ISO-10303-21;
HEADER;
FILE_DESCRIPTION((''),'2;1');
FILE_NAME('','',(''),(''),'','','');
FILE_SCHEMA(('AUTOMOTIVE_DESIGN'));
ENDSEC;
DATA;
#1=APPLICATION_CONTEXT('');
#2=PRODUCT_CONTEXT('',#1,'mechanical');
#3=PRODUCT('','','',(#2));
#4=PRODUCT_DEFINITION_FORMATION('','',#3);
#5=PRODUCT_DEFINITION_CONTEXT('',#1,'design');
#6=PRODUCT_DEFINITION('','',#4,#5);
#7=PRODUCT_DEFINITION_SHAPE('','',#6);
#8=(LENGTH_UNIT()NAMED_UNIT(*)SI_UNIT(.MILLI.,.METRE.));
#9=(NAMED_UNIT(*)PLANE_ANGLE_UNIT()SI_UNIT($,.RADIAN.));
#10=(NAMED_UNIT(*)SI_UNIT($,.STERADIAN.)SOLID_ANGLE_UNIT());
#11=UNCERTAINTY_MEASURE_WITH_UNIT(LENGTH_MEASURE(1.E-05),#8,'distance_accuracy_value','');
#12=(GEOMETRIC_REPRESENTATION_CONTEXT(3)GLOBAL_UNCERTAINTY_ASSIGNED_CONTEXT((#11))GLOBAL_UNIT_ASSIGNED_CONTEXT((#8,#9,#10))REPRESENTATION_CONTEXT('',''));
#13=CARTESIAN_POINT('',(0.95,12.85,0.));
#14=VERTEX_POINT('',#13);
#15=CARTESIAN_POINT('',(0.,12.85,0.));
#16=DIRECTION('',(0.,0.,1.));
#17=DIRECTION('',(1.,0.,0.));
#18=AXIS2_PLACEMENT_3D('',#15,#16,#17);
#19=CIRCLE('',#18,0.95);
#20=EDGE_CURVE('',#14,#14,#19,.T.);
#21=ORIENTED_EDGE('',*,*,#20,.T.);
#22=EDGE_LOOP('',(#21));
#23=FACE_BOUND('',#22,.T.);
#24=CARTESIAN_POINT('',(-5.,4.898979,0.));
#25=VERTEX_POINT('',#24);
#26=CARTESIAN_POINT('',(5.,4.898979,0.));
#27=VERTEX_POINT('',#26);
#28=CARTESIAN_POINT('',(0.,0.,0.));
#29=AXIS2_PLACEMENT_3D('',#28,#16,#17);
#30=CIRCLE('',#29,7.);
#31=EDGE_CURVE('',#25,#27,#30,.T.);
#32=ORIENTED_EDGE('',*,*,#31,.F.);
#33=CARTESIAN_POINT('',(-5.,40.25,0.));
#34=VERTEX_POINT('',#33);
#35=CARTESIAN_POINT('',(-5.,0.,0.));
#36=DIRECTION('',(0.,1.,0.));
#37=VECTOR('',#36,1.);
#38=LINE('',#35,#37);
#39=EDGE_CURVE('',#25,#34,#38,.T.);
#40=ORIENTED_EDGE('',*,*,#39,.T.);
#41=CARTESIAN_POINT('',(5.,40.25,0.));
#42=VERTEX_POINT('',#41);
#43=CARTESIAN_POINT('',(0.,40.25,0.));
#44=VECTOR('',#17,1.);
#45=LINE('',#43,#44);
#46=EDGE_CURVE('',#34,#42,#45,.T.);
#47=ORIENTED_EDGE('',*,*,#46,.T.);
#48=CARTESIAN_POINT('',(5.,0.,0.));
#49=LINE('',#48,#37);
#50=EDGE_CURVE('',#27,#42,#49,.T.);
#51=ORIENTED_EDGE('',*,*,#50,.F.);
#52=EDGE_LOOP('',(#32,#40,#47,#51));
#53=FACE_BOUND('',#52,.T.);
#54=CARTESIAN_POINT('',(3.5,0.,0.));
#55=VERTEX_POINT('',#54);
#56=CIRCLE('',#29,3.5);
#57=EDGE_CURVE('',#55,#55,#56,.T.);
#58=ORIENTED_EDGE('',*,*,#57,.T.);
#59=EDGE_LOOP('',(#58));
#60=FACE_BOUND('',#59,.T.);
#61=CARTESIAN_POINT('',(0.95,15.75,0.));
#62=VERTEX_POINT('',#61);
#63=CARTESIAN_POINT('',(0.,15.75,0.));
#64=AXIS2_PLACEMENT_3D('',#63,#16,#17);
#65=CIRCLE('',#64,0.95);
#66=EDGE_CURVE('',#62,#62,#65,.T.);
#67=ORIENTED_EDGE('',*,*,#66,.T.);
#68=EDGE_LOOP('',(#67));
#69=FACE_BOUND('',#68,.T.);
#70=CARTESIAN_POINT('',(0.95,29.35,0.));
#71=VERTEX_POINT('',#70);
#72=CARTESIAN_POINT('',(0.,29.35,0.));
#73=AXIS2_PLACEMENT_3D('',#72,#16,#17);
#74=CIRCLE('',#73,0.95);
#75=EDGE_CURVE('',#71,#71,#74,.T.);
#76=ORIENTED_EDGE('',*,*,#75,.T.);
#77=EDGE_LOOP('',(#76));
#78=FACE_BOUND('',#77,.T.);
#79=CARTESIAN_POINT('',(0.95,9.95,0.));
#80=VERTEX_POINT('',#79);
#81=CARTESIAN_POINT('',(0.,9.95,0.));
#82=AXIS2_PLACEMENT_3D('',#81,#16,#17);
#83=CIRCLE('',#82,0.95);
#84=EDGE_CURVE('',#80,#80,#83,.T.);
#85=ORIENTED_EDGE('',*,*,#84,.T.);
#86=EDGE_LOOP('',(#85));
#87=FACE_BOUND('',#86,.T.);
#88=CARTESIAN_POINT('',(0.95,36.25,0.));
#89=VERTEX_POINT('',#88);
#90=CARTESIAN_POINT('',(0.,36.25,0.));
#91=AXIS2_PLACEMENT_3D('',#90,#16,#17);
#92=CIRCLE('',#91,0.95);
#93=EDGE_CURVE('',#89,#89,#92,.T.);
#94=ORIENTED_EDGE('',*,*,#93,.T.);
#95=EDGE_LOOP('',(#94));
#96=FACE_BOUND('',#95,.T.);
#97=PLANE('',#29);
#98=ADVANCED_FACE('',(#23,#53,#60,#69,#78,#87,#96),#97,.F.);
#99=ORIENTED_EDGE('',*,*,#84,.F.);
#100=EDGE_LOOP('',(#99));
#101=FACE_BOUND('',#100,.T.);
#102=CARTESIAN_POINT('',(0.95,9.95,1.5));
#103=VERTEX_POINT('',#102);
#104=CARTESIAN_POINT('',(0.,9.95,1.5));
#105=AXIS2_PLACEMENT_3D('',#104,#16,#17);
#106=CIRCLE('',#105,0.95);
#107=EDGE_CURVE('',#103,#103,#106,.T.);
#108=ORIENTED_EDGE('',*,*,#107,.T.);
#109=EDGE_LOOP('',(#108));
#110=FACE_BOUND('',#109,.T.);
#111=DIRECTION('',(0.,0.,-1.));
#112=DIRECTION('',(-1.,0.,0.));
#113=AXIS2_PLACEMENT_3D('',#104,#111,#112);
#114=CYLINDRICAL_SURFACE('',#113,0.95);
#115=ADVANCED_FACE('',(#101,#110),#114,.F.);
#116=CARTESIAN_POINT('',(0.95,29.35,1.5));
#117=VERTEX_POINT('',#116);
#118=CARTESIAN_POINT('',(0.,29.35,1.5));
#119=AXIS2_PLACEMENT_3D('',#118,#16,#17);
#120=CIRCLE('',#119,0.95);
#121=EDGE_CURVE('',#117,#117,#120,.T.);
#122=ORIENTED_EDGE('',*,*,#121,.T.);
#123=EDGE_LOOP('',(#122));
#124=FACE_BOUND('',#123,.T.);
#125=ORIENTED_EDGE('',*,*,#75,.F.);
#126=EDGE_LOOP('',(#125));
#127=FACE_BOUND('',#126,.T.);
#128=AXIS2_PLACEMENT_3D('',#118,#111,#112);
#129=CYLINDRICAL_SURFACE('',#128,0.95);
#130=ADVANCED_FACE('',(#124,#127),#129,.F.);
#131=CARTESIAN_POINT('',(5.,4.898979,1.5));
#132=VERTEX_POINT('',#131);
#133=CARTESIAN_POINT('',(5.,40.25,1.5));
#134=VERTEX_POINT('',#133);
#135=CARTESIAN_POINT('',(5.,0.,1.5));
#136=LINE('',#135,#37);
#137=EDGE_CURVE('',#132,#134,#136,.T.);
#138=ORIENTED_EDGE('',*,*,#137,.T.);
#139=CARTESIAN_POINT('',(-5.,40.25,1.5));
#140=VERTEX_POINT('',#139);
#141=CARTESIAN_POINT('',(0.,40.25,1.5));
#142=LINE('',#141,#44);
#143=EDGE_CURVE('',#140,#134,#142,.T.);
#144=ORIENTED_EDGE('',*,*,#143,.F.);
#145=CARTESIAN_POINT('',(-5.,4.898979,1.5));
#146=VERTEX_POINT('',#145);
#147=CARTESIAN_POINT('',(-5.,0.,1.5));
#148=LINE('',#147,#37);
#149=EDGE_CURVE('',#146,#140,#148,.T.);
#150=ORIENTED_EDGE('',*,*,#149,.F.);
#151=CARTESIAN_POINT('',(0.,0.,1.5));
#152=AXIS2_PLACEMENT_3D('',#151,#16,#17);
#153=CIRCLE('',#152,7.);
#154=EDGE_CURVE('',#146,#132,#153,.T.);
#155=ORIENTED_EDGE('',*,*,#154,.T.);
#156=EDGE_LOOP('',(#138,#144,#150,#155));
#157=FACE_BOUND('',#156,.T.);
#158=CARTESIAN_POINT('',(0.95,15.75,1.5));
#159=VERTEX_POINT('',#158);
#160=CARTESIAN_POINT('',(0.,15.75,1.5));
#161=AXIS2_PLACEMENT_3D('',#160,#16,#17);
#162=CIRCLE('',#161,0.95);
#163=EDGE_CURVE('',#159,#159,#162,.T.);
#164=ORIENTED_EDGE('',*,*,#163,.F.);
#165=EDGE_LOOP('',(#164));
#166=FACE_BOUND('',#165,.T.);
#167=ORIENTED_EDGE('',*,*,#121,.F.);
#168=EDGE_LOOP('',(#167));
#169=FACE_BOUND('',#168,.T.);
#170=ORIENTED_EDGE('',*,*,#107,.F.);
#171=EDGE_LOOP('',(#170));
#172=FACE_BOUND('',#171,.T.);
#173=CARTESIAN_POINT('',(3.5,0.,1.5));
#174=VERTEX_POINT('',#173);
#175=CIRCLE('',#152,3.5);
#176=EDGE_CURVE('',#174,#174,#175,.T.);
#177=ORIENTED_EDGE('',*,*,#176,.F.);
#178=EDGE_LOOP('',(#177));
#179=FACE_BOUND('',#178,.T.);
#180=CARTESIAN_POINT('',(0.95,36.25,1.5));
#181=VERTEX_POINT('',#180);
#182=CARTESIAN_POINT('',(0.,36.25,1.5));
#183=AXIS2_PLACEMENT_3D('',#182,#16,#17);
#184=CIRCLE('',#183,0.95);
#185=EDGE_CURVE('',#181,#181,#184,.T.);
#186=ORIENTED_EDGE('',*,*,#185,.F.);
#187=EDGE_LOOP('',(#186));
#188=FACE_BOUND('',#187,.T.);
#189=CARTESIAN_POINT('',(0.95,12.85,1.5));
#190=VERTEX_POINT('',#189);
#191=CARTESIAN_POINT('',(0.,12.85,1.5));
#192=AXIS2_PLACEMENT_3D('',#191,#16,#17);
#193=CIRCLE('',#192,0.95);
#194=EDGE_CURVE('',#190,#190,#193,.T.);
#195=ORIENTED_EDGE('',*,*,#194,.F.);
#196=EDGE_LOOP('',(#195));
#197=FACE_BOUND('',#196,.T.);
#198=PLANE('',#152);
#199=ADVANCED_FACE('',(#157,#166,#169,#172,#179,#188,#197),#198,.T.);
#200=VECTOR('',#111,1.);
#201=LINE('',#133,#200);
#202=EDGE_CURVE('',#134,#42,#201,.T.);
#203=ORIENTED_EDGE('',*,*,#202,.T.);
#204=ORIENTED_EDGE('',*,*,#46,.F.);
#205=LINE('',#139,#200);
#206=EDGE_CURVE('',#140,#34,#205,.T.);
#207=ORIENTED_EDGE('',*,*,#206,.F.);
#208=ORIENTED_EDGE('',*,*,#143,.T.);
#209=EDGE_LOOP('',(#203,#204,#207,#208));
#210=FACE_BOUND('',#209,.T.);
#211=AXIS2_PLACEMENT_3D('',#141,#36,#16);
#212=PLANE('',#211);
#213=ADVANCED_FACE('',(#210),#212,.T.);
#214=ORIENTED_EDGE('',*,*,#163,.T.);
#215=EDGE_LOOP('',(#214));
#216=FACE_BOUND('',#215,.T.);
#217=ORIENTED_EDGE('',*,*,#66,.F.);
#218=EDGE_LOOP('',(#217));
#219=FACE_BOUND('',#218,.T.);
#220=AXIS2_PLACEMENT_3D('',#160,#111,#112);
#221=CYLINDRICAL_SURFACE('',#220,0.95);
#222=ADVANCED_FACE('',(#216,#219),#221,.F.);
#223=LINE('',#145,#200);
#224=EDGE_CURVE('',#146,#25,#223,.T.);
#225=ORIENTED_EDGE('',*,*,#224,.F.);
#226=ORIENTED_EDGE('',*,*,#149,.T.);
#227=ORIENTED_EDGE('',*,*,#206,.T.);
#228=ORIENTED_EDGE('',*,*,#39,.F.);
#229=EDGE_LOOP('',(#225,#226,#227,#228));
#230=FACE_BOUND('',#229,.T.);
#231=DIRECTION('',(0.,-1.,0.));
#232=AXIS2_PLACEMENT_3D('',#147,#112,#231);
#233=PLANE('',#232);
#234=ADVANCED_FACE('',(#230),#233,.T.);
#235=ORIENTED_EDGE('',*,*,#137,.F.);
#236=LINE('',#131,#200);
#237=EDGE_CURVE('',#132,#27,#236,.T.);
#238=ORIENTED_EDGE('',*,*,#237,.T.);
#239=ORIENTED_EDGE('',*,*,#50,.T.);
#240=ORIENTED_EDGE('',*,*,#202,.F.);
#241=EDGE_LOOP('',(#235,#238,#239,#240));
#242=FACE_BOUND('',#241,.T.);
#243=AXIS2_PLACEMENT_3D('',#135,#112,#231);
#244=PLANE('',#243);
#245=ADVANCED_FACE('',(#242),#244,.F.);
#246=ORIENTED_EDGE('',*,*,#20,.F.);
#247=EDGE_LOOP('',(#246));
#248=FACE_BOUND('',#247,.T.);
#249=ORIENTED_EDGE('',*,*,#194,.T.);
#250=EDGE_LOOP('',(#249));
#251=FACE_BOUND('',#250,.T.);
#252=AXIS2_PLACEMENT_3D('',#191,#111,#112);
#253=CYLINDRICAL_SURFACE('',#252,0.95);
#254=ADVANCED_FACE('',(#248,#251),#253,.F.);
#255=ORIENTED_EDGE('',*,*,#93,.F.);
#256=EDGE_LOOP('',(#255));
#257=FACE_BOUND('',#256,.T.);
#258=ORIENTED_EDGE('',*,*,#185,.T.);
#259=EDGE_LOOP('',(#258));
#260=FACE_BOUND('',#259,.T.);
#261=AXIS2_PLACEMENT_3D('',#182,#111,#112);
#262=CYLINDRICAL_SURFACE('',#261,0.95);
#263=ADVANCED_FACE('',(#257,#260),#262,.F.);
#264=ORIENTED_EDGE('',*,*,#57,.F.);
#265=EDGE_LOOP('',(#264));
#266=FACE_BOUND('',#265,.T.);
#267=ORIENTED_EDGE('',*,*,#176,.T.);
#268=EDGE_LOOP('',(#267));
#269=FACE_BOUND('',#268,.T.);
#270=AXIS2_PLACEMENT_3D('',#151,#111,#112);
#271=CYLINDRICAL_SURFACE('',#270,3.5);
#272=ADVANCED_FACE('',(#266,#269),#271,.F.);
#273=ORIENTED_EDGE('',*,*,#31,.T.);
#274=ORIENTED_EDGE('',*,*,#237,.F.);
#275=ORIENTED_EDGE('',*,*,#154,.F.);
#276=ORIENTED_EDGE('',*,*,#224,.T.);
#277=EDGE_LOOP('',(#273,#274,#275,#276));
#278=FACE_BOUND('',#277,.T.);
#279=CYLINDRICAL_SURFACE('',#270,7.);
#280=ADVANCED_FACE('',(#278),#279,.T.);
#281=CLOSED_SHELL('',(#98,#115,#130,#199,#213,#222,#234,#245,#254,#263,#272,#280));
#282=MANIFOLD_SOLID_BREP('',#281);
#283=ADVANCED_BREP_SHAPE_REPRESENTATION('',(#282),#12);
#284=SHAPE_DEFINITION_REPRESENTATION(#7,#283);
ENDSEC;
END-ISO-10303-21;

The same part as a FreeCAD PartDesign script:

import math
import FreeCAD as App
import Part
import Sketcher

V = App.Vector
Q = App.Units.Quantity

doc = App.newDocument("Part")
body = doc.addObject("PartDesign::Body", "Body")

sketch1 = body.newObject("Sketcher::SketchObject", "Sketch")
sketch1.AttachmentSupport = (doc.getObject("XY_Plane"), [""])
sketch1.MapMode = "FlatFace"
sketch1.addGeometry([
    Part.ArcOfCircle(Part.Circle(V(0, 0, 0), V(0, 0, 1), 7), math.radians(135.584691), math.radians(404.415309)),
    Part.LineSegment(V(5, 4.898979, 0), V(5, 40.25, 0)),
    Part.LineSegment(V(5, 40.25, 0), V(-5, 40.25, 0)),
    Part.LineSegment(V(-5, 40.25, 0), V(-5, 4.898979, 0)),
    Part.Circle(V(0, 0, 0), V(0, 0, 1), 3.5),
    Part.Circle(V(0, 9.95, 0), V(0, 0, 1), 0.95),
    Part.Circle(V(0, 12.85, 0), V(0, 0, 1), 0.95),
    Part.Circle(V(0, 15.75, 0), V(0, 0, 1), 0.95),
    Part.Circle(V(0, 29.35, 0), V(0, 0, 1), 0.95),
    Part.Circle(V(0, 36.25, 0), V(0, 0, 1), 0.95),
], False)
sketch1.addConstraint([
    Sketcher.Constraint("Coincident", 0, 2, 1, 1),
    Sketcher.Constraint("Coincident", 1, 2, 2, 1),
    Sketcher.Constraint("Coincident", 2, 2, 3, 1),
    Sketcher.Constraint("Coincident", 3, 2, 0, 1),
    Sketcher.Constraint("Vertical", 1),
    Sketcher.Constraint("Horizontal", 2),
    Sketcher.Constraint("Vertical", 3),
    Sketcher.Constraint("Coincident", 0, 3, -1, 1),
    Sketcher.Constraint("Coincident", 4, 3, -1, 1),
    Sketcher.Constraint("Equal", 5, 6),
    Sketcher.Constraint("Equal", 6, 7),
    Sketcher.Constraint("Equal", 7, 8),
    Sketcher.Constraint("Equal", 8, 9),
    Sketcher.Constraint("PointOnObject", 5, 3, -2),
    Sketcher.Constraint("PointOnObject", 6, 3, -2),
    Sketcher.Constraint("PointOnObject", 7, 3, -2),
    Sketcher.Constraint("PointOnObject", 8, 3, -2),
    Sketcher.Constraint("PointOnObject", 9, 3, -2),
    Sketcher.Constraint("Horizontal", 0, 2, 3, 2),
    Sketcher.Constraint("Diameter", 4, Q("7 mm")),
    Sketcher.Constraint("Radius", 0, Q("7 mm")),
    Sketcher.Constraint("Diameter", 5, Q("1.9 mm")),
    Sketcher.Constraint("DistanceX", 2, 2, 2, 1, Q("10 mm")),
    Sketcher.Constraint("DistanceY", 9, 3, 1, 2, Q("4 mm")),
    Sketcher.Constraint("DistanceY", 5, 3, 6, 3, Q("2.9 mm")),
    Sketcher.Constraint("DistanceY", 6, 3, 7, 3, Q("2.9 mm")),
    Sketcher.Constraint("DistanceY", 7, 3, 8, 3, Q("13.6 mm")),
    Sketcher.Constraint("DistanceY", 8, 3, 9, 3, Q("6.9 mm")),
    Sketcher.Constraint("DistanceY", -1, 1, 5, 3, Q("9.95 mm")),
])
pad1 = body.newObject("PartDesign::Pad", "Pad")
pad1.Profile = sketch1
pad1.Length = 1.5

doc.recompute()
